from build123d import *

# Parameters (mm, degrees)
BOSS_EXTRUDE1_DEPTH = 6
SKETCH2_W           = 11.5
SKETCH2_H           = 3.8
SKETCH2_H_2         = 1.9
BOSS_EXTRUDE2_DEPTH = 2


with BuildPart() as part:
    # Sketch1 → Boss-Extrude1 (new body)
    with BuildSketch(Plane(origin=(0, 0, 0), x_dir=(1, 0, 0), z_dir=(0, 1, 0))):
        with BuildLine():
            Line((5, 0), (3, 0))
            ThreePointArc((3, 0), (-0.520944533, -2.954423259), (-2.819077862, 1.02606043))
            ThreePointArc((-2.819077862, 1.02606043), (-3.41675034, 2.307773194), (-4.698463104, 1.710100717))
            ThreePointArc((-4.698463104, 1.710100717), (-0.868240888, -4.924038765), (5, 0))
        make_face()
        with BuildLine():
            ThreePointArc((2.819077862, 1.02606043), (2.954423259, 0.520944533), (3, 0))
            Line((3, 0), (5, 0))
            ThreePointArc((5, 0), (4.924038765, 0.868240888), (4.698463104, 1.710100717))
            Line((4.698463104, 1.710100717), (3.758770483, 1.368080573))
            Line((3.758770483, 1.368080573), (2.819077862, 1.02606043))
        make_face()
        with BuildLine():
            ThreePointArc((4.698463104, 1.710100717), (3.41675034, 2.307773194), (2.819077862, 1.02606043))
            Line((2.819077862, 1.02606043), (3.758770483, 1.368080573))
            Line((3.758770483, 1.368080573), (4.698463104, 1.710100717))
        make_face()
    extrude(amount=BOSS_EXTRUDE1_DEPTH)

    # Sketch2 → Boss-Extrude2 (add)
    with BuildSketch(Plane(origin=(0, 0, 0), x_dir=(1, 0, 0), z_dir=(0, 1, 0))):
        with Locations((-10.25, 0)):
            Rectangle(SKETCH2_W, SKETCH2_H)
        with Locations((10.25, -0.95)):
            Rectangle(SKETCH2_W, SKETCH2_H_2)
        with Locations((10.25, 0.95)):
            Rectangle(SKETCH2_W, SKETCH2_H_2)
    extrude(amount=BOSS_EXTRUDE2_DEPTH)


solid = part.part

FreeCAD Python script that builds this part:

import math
import FreeCAD as App
import Part
import Sketcher

V = App.Vector


def add_polygon(sketch, points):
    """Adds a closed chain of lines whose ends are joined by coincident constraints."""
    first, n = sketch.GeometryCount, len(points)
    for a, b in zip(points, points[1:] + points[:1]):
        sketch.addGeometry(Part.LineSegment(App.Vector(*a, 0), App.Vector(*b, 0)), False)
    for i in range(n):
        sketch.addConstraint(Sketcher.Constraint("Coincident", first + i, 2, first + (i + 1) % n, 1))

doc = App.newDocument("Part")
body = doc.addObject("PartDesign::Body", "Body")

# Sketch on XZ plane
sketch1 = body.newObject("Sketcher::SketchObject", "Sketch")
sketch1.AttachmentSupport = (doc.getObject("XZ_Plane"), [""])
sketch1.MapMode = "FlatFace"
sketch1.addGeometry(Part.ArcOfCircle(Part.Circle(V(0, 0, 0), V(0, 0, 1), 3), math.radians(0), math.radians(200)), False)
sketch1.addGeometry(Part.ArcOfCircle(Part.Circle(V(-3.8, -1.4, 0), V(0, 0, 1), 1), math.radians(-160), math.radians(20)), False)
sketch1.addGeometry(Part.ArcOfCircle(Part.Circle(V(0, 0, 0), V(0, 0, 1), 5), math.radians(0), math.radians(200)), False)
sketch1.addGeometry(Part.ArcOfCircle(Part.Circle(V(0, 0, 0), V(0, 0, 1), 5), math.radians(-20), math.radians(0)), False)
sketch1.addGeometry(Part.ArcOfCircle(Part.Circle(V(3.8, -1.4, 0), V(0, 0, 1), 1), math.radians(160), math.radians(340)), False)
sketch1.addGeometry(Part.ArcOfCircle(Part.Circle(V(0, 0, 0), V(0, 0, 1), 3), math.radians(-20), math.radians(0)), False)
sketch1.addConstraint(Sketcher.Constraint("Tangent", 0, 2, 1, 2))
sketch1.addConstraint(Sketcher.Constraint("Tangent", 1, 1, 2, 2))
sketch1.addConstraint(Sketcher.Constraint("Tangent", 2, 1, 3, 2))
sketch1.addConstraint(Sketcher.Constraint("Tangent", 3, 1, 4, 2))
sketch1.addConstraint(Sketcher.Constraint("Tangent", 4, 1, 5, 1))
sketch1.addConstraint(Sketcher.Constraint("Tangent", 5, 2, 0, 1))
sketch1.addConstraint(Sketcher.Constraint("Coincident", 0, 3, -1, 1))
sketch1.addConstraint(Sketcher.Constraint("Coincident", 2, 3, -1, 1))
sketch1.addConstraint(Sketcher.Constraint("Equal", 2, 3))
sketch1.addConstraint(Sketcher.Constraint("Equal", 1, 4))
sketch1.addConstraint(Sketcher.Constraint("PointOnObject", 2, 1, -1))
sketch1.addConstraint(Sketcher.Constraint("PointOnObject", 5, 2, -1))
sketch1.addConstraint(Sketcher.Constraint("Horizontal", 1, 3, 4, 3))
sketch1.addConstraint(Sketcher.Constraint("Radius", 0, 3.0))
sketch1.addConstraint(Sketcher.Constraint("Radius", 1, 1.0))
sketch1.addConstraint(Sketcher.Constraint("DistanceY", 1, 1, -1, 1, 1.710101))
pad1 = body.newObject("PartDesign::Pad", "Pad")
pad1.Profile = sketch1
pad1.Length = 6
pad1.Reversed = True

# Sketch on XZ plane
sketch2 = body.newObject("Sketcher::SketchObject", "Sketch001")
sketch2.AttachmentSupport = (doc.getObject("XZ_Plane"), [""])
sketch2.MapMode = "FlatFace"
add_polygon(sketch2, [(-16, -1.9), (-16, 1.9), (-4.5, 1.9), (-4.5, -1.9)])  # lines 0-3
add_polygon(sketch2, [(4.5, 1.9), (16, 1.9), (16, -1.9), (4.5, -1.9)])  # lines 4-7
sketch2.addConstraint(Sketcher.Constraint("Vertical", 0))
sketch2.addConstraint(Sketcher.Constraint("Horizontal", 1))
sketch2.addConstraint(Sketcher.Constraint("Vertical", 2))
sketch2.addConstraint(Sketcher.Constraint("Horizontal", 3))
sketch2.addConstraint(Sketcher.Constraint("Horizontal", 4))
sketch2.addConstraint(Sketcher.Constraint("Vertical", 5))
sketch2.addConstraint(Sketcher.Constraint("Horizontal", 6))
sketch2.addConstraint(Sketcher.Constraint("Vertical", 7))
sketch2.addConstraint(Sketcher.Constraint("Symmetric", 3, 2, 4, 2, -1, 1))
sketch2.addConstraint(Sketcher.Constraint("Symmetric", 1, 2, 6, 2, -1, 1))
sketch2.addConstraint(Sketcher.Constraint("Horizontal", 1, 2, 4, 2))
sketch2.addConstraint(Sketcher.Constraint("DistanceX", 1, 1, 1, 2, 11.5))
sketch2.addConstraint(Sketcher.Constraint("DistanceY", 0, 1, 0, 2, 3.8))
sketch2.addConstraint(Sketcher.Constraint("DistanceX", 0, 2, -1, 1, 16.0))
pad2 = body.newObject("PartDesign::Pad", "Pad001")
pad2.Profile = sketch2
pad2.Length = 2
pad2.Reversed = True

doc.recompute()
